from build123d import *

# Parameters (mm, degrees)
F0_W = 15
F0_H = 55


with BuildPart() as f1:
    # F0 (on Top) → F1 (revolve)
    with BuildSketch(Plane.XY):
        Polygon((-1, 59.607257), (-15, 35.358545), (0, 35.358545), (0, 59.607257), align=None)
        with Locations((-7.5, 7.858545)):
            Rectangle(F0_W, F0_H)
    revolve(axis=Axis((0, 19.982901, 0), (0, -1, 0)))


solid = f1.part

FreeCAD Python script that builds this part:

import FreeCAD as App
import Part
import Sketcher

V = App.Vector
Q = App.Units.Quantity


def add_polygon(sketch, points):
    """Adds a closed chain of lines whose ends are joined by coincident constraints."""
    first, n = sketch.GeometryCount, len(points)
    for a, b in zip(points, points[1:] + points[:1]):
        sketch.addGeometry(Part.LineSegment(App.Vector(*a, 0), App.Vector(*b, 0)), False)
    for i in range(n):
        sketch.addConstraint(Sketcher.Constraint("Coincident", first + i, 2, first + (i + 1) % n, 1))

doc = App.newDocument("Part")
body = doc.addObject("PartDesign::Body", "Body")

# Sketch on XY plane
sketch1 = doc.addObject("Sketcher::SketchObject", "Sketch")
body.addObject(sketch1)
sketch1.AttachmentSupport = (doc.XY_Plane, [""])
sketch1.MapMode = "FlatFace"
add_polygon(sketch1, [(-1, 59.6), (-15, 35.4), (-15, -19.6), (0, -19.6), (0, 59.6)])  # lines 0-4
sketch1.addConstraint(Sketcher.Constraint("Vertical", 1))
sketch1.addConstraint(Sketcher.Constraint("Horizontal", 2))
sketch1.addConstraint(Sketcher.Constraint("Vertical", 3))
sketch1.addConstraint(Sketcher.Constraint("Horizontal", 4))
sketch1.addConstraint(Sketcher.Constraint("PointOnObject", 2, 2, -2))
sketch1.addConstraint(Sketcher.Constraint("DistanceX", 2, 1, 2, 2, 15.0))
sketch1.addConstraint(Sketcher.Constraint("DistanceX", 4, 2, 4, 1, 1.0))
sketch1.addConstraint(Sketcher.Constraint("DistanceY", 1, 2, 1, 1, 55.0))
sketch1.addConstraint(Sketcher.Constraint("Angle", 0, Q("-119.999999 deg")))
sketch1.addConstraint(Sketcher.Constraint("DistanceY", -1, 1, 0, 2, 35.358545))
revolution = doc.addObject("PartDesign::Revolution", "Revolution")
body.addObject(revolution)
revolution.Profile = sketch1
revolution.ReferenceAxis = (sketch1, ["V_Axis"])
revolution.Angle = 360

doc.recompute()
